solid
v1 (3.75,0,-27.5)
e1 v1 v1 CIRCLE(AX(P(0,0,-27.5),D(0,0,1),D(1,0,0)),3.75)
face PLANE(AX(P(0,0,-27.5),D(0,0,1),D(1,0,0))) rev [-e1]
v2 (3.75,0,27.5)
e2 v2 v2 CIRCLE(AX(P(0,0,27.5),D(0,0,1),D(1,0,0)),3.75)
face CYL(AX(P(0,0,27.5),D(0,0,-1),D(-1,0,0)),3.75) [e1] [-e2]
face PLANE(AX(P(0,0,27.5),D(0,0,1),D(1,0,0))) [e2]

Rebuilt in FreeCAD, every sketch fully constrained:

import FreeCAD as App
import Part
import Sketcher
Q = App.Units.Quantity

doc = App.newDocument("Part")
body = doc.addObject("PartDesign::Body", "Body")

# Sketch on XY plane
sketch1 = body.newObject("Sketcher::SketchObject", "Sketch")
sketch1.AttachmentSupport = (doc.getObject("XY_Plane"), [""])
sketch1.MapMode = "FlatFace"
sketch1.addGeometry(Part.Circle(App.Vector(0, 0, 0), App.Vector(0, 0, 1), 3.8), False)
sketch1.addConstraint([
    Sketcher.Constraint("Coincident", 0, 3, -1, 1),
    Sketcher.Constraint("Diameter", 0, Q("7.5 mm")),
])
pad1 = body.newObject("PartDesign::Pad", "Pad")
pad1.Profile = sketch1
pad1.Length = 55
pad1.Midplane = True

doc.recompute()
